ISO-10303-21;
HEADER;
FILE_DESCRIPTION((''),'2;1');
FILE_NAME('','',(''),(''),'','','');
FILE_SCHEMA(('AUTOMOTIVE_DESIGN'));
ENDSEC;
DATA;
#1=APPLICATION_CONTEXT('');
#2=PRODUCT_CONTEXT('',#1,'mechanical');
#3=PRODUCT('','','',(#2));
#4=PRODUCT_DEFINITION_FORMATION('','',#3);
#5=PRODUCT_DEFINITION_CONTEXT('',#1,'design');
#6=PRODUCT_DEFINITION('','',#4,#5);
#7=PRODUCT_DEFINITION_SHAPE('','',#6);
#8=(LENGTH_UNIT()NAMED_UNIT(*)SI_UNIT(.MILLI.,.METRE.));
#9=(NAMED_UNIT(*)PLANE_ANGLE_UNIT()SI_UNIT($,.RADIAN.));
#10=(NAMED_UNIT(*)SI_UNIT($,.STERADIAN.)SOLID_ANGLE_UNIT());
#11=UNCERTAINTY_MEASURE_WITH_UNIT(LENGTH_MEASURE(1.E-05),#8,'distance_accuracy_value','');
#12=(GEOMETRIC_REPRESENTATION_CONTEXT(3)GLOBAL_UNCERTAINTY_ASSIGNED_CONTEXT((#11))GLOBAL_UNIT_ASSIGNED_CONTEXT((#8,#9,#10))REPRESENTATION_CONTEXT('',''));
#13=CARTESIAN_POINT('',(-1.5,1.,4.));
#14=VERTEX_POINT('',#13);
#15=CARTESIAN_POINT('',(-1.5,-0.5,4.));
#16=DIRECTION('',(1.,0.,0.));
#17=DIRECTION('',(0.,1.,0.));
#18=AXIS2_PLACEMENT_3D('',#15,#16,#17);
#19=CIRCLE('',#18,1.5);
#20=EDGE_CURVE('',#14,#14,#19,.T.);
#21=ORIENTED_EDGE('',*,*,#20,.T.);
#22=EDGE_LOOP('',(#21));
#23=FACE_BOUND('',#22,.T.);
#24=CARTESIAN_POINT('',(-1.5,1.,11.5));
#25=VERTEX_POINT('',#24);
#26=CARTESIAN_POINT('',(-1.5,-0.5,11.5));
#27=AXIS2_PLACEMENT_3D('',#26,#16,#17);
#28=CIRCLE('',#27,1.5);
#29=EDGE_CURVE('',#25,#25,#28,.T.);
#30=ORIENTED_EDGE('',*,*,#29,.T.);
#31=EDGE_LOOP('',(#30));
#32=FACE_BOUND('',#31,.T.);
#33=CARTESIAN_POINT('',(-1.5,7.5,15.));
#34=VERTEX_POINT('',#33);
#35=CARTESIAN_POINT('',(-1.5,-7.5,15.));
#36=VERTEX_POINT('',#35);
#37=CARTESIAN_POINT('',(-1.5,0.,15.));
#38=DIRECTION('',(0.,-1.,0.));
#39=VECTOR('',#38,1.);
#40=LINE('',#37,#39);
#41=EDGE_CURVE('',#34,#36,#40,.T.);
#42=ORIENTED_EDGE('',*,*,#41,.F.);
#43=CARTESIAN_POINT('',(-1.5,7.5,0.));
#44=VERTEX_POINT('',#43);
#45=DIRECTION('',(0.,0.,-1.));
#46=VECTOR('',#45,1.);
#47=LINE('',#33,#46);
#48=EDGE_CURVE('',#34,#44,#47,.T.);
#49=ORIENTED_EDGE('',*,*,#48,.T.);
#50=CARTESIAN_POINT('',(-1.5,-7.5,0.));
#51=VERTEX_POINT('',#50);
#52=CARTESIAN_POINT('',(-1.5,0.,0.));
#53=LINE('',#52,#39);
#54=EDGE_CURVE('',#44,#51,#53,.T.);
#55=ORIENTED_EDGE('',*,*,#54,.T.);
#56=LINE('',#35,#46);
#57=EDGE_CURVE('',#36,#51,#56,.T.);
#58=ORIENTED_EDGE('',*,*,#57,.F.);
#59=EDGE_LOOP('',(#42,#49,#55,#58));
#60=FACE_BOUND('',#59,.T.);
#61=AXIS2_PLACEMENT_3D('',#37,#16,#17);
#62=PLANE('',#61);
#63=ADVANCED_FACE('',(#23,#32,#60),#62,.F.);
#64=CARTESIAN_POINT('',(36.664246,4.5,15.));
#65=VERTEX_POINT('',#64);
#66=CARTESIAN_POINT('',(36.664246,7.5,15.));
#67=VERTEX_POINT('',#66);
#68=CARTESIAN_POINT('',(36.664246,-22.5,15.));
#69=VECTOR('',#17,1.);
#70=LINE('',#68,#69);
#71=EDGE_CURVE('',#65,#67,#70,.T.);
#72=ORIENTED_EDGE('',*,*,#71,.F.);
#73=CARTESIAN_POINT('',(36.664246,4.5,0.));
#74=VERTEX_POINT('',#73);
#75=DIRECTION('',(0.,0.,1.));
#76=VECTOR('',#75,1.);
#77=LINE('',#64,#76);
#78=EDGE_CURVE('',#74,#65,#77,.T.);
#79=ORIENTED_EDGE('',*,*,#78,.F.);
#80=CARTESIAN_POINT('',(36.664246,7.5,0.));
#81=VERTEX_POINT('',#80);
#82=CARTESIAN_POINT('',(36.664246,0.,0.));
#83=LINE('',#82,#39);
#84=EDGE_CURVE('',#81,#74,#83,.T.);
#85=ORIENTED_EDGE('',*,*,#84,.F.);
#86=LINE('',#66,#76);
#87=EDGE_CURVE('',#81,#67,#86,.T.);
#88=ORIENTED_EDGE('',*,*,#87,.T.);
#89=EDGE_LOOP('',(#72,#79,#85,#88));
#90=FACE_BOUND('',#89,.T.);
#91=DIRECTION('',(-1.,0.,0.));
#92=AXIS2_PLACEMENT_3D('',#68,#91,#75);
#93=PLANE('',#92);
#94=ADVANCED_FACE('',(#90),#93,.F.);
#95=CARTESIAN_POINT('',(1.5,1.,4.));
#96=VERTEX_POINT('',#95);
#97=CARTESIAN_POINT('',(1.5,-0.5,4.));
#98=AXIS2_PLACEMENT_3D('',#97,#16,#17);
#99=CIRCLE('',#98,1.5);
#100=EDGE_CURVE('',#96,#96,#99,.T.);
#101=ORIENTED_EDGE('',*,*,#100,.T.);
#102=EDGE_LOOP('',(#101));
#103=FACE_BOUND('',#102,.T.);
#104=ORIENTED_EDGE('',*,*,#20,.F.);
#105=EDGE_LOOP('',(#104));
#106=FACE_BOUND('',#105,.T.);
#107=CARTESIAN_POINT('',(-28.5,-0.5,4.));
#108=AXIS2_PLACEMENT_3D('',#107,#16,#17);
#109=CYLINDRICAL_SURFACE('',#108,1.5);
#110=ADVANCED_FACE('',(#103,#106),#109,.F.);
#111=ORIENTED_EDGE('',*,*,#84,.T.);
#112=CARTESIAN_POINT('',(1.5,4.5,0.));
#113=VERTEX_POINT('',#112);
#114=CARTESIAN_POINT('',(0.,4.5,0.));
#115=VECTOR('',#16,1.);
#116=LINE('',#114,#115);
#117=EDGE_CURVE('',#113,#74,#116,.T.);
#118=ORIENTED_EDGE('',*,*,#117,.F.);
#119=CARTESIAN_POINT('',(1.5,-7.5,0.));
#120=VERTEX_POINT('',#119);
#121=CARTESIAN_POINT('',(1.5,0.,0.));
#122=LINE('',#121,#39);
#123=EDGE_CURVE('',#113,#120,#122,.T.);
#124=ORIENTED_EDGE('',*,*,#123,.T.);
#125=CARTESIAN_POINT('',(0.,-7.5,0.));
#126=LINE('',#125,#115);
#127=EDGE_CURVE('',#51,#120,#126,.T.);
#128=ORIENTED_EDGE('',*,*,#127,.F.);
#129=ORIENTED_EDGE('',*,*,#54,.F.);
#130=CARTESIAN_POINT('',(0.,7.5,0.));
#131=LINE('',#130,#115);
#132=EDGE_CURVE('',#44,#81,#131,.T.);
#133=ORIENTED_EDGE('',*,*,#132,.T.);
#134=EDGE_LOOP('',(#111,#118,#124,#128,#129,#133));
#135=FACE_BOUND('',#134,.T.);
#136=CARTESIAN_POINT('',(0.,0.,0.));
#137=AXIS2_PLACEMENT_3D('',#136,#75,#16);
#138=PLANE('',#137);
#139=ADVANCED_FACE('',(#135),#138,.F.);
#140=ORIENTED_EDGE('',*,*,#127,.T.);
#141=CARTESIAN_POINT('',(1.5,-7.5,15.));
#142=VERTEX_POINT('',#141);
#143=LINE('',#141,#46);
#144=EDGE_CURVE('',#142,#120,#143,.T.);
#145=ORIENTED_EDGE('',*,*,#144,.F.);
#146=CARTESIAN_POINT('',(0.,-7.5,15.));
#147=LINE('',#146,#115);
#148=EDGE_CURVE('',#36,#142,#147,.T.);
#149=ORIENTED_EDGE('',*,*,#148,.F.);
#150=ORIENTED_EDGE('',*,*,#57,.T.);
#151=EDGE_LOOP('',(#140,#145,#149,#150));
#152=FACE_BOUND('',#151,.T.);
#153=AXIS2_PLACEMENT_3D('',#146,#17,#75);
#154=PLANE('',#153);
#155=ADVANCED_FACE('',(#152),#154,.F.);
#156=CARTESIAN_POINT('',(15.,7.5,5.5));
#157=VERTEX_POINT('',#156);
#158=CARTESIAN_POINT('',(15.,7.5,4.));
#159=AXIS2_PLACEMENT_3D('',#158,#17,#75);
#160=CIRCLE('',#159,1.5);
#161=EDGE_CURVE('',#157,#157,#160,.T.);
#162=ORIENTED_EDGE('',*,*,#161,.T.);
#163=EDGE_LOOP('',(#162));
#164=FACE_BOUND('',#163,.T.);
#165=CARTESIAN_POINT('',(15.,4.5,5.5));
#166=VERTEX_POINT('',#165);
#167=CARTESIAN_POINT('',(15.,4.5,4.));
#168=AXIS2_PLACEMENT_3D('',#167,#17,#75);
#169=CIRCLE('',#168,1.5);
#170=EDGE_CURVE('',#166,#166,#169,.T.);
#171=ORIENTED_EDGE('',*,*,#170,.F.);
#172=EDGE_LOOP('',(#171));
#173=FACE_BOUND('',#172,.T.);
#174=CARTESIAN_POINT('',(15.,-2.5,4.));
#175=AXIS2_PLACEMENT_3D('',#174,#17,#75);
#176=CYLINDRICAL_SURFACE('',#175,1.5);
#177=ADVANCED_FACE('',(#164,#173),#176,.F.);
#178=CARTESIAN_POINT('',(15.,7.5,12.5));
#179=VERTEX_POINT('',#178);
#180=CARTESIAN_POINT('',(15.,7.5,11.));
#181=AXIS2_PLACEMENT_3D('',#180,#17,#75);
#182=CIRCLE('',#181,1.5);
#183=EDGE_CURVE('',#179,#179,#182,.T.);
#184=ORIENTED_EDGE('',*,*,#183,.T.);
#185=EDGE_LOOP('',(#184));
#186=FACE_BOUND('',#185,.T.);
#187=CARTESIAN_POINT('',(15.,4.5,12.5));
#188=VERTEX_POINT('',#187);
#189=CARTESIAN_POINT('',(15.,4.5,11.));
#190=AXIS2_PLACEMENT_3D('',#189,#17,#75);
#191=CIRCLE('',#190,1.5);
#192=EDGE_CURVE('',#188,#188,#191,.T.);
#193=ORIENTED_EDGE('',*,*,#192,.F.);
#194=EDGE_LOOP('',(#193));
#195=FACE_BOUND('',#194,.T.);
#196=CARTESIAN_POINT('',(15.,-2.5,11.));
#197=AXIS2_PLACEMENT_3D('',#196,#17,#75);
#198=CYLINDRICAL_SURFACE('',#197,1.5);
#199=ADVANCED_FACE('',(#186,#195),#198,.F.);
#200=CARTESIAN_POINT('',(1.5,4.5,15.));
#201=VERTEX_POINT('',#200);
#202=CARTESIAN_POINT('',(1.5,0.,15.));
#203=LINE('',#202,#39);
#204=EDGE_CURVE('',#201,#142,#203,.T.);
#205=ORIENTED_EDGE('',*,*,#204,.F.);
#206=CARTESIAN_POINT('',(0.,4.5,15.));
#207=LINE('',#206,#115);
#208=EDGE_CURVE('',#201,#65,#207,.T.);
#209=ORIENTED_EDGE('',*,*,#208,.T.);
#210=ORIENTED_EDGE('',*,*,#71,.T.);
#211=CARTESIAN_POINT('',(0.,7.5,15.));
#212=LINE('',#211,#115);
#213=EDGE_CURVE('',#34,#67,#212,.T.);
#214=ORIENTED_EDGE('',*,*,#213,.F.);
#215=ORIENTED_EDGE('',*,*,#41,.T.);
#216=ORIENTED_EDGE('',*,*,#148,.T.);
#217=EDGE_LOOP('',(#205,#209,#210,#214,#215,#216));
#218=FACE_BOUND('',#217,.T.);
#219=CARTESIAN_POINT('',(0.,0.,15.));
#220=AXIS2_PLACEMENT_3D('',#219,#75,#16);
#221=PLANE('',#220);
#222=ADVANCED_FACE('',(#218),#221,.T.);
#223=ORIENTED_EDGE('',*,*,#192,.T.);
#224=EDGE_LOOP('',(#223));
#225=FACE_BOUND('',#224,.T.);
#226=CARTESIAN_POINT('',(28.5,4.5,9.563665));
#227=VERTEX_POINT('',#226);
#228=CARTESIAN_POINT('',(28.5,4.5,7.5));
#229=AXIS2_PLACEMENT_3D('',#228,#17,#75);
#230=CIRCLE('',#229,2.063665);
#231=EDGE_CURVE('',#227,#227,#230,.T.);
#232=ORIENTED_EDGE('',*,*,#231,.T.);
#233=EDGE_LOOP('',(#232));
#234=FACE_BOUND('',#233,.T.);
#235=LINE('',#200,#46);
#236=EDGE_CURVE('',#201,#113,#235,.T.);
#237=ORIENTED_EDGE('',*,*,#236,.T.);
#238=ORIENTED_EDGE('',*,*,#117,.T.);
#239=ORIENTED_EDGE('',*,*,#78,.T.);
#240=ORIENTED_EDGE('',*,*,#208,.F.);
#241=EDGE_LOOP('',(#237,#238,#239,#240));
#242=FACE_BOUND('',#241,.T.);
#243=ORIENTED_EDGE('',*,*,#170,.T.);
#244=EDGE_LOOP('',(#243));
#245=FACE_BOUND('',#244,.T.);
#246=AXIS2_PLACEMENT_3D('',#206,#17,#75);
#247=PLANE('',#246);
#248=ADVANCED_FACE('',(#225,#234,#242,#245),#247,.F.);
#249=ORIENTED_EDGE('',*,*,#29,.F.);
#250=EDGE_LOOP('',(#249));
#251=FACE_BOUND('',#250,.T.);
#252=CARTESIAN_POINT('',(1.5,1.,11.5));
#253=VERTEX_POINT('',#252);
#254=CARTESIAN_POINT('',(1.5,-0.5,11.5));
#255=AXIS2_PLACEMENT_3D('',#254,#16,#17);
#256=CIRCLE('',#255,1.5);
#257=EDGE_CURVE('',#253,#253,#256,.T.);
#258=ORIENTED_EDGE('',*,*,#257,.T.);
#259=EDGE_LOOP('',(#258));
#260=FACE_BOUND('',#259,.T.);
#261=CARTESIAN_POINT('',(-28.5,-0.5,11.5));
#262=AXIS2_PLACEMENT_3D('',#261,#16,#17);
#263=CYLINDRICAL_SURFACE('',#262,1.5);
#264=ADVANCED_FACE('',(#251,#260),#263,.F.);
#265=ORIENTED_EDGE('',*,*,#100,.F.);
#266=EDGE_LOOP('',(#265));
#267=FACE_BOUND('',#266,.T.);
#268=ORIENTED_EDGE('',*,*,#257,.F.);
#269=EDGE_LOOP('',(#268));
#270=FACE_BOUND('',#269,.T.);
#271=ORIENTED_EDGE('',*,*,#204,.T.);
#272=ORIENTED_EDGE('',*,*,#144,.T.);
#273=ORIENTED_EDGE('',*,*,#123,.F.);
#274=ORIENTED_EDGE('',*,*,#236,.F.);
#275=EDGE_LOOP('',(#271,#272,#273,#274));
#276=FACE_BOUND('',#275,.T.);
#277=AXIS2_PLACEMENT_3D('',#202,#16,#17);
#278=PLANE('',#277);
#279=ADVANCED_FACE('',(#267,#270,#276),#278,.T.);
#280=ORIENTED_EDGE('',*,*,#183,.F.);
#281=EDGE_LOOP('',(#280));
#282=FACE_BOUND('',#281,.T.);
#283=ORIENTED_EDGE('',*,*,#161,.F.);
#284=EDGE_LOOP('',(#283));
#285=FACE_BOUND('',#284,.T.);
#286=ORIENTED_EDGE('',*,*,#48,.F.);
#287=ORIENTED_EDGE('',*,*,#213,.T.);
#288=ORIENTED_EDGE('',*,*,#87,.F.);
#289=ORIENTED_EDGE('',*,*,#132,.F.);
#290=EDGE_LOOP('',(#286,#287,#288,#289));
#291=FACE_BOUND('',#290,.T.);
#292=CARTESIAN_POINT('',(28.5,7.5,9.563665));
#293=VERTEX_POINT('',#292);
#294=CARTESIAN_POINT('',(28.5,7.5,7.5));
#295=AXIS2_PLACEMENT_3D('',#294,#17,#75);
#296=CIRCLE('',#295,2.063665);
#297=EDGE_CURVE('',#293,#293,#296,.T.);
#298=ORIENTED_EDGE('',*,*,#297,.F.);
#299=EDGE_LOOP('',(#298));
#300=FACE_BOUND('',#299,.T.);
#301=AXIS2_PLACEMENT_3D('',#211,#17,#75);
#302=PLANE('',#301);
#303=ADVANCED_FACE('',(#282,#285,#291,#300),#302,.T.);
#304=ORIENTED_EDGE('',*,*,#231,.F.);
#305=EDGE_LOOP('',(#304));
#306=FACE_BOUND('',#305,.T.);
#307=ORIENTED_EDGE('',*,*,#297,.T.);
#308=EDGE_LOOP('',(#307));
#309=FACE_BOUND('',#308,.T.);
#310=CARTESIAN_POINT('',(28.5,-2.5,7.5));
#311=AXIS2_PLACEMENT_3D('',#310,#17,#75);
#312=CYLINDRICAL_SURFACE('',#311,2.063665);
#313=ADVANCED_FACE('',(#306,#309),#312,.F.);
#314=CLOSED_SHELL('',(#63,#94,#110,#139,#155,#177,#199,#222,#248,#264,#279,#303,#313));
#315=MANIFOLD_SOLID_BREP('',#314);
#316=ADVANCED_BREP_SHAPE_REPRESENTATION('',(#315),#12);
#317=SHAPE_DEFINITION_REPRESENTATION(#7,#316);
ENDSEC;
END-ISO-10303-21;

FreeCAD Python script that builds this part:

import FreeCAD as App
import Part
import Sketcher

V = App.Vector
Q = App.Units.Quantity

doc = App.newDocument("Part")
body = doc.addObject("PartDesign::Body", "Body")

# Sketch on XY plane
sketch1 = body.newObject("Sketcher::SketchObject", "Sketch")
sketch1.AttachmentSupport = (doc.getObject("XY_Plane"), [""])
sketch1.MapMode = "FlatFace"
sketch1.addGeometry(Part.LineSegment(V(-1.5, -7.5, 0), V(1.5, -7.5, 0)), False)
sketch1.addGeometry(Part.LineSegment(V(1.5, -7.5, 0), V(1.5, 4.5, 0)), False)
sketch1.addGeometry(Part.LineSegment(V(1.5, 4.5, 0), V(48.5, 4.5, 0)), False)
sketch1.addGeometry(Part.LineSegment(V(48.5, 4.5, 0), V(48.5, 7.5, 0)), False)
sketch1.addGeometry(Part.LineSegment(V(48.5, 7.5, 0), V(-1.5, 7.5, 0)), False)
sketch1.addGeometry(Part.LineSegment(V(-1.5, 7.5, 0), V(-1.5, -7.5, 0)), False)
sketch1.addConstraint(Sketcher.Constraint("Coincident", 0, 2, 1, 1))
sketch1.addConstraint(Sketcher.Constraint("Coincident", 1, 2, 2, 1))
sketch1.addConstraint(Sketcher.Constraint("Coincident", 2, 2, 3, 1))
sketch1.addConstraint(Sketcher.Constraint("Coincident", 3, 2, 4, 1))
sketch1.addConstraint(Sketcher.Constraint("Coincident", 4, 2, 5, 1))
sketch1.addConstraint(Sketcher.Constraint("Coincident", 5, 2, 0, 1))
sketch1.addConstraint(Sketcher.Constraint("Horizontal", 0))
sketch1.addConstraint(Sketcher.Constraint("Vertical", 1))
sketch1.addConstraint(Sketcher.Constraint("Horizontal", 2))
sketch1.addConstraint(Sketcher.Constraint("Vertical", 3))
sketch1.addConstraint(Sketcher.Constraint("Horizontal", 4))
sketch1.addConstraint(Sketcher.Constraint("Vertical", 5))
sketch1.addConstraint(Sketcher.Constraint("Symmetric", 0, 2, 4, 2, -1, 1))
sketch1.addConstraint(Sketcher.Constraint("Equal", 0, 3))
sketch1.addConstraint(Sketcher.Constraint("DistanceX", 0, 1, 0, 2, Q("3 mm")))
sketch1.addConstraint(Sketcher.Constraint("DistanceX", 2, 1, 2, 2, Q("47 mm")))
sketch1.addConstraint(Sketcher.Constraint("DistanceY", 1, 1, 1, 2, Q("12 mm")))
pad1 = body.newObject("PartDesign::Pad", "Pad")
pad1.Profile = sketch1
pad1.Length = 15

# Sketch on YZ plane
sketch2 = body.newObject("Sketcher::SketchObject", "Sketch001")
sketch2.AttachmentSupport = (doc.getObject("YZ_Plane"), [""])
sketch2.MapMode = "FlatFace"
sketch2.AttachmentOffset = App.Placement(V(0, 0, 1.5), App.Rotation())
sketch2.addGeometry(Part.Circle(V(-0.5, 11.5, 0), V(0, 0, 1), 1.5), False)
sketch2.addGeometry(Part.Circle(V(-0.5, 4, 0), V(0, 0, 1), 1.5), False)
sketch2.addConstraint(Sketcher.Constraint("Equal", 0, 1))
sketch2.addConstraint(Sketcher.Constraint("Vertical", 0, 3, 1, 3))
sketch2.addConstraint(Sketcher.Constraint("Diameter", 0, Q("3 mm")))
sketch2.addConstraint(Sketcher.Constraint("DistanceY", -1, 1, 1, 3, Q("4 mm")))
sketch2.addConstraint(Sketcher.Constraint("DistanceX", 0, 3, -1, 1, Q("0.5 mm")))
sketch2.addConstraint(Sketcher.Constraint("DistanceY", -1, 1, 0, 3, Q("11.5 mm")))
pocket1 = body.newObject("PartDesign::Pocket", "Pocket")
pocket1.Profile = sketch2
pocket1.Length = 30

# Sketch on XZ plane
sketch3 = body.newObject("Sketcher::SketchObject", "Sketch002")
sketch3.AttachmentSupport = (doc.getObject("XZ_Plane"), [""])
sketch3.MapMode = "FlatFace"
sketch3.AttachmentOffset = App.Placement(V(0, 0, -7.5), App.Rotation())
sketch3.addGeometry(Part.Circle(V(28.5, 7.5, 0), V(0, 0, 1), 2.063665), False)
sketch3.addConstraint(Sketcher.Constraint("DistanceX", -1, 1, 0, 3, Q("28.5 mm")))
sketch3.addConstraint(Sketcher.Constraint("DistanceY", -1, 1, 0, 3, Q("7.5 mm")))
sketch3.addConstraint(Sketcher.Constraint("Diameter", 0, Q("4.127331 mm")))
pocket2 = body.newObject("PartDesign::Pocket", "Pocket001")
pocket2.Profile = sketch3
pocket2.Length = 10
pocket2.Reversed = True

# Sketch on XZ plane
sketch4 = body.newObject("Sketcher::SketchObject", "Sketch003")
sketch4.AttachmentSupport = (doc.getObject("XZ_Plane"), [""])
sketch4.MapMode = "FlatFace"
sketch4.AttachmentOffset = App.Placement(V(0, 0, -7.5), App.Rotation())
sketch4.addGeometry(Part.LineSegment(V(36.664246, 0, 0), V(36.664246, 15, 0)), False)
sketch4.addGeometry(Part.LineSegment(V(36.664246, 15, 0), V(48.5, 15, 0)), False)
sketch4.addGeometry(Part.LineSegment(V(48.5, 15, 0), V(48.5, 0, 0)), False)
sketch4.addGeometry(Part.LineSegment(V(48.5, 0, 0), V(36.664246, 0, 0)), False)
sketch4.addConstraint(Sketcher.Constraint("Coincident", 0, 2, 1, 1))
sketch4.addConstraint(Sketcher.Constraint("Coincident", 1, 2, 2, 1))
sketch4.addConstraint(Sketcher.Constraint("Coincident", 2, 2, 3, 1))
sketch4.addConstraint(Sketcher.Constraint("Coincident", 3, 2, 0, 1))
sketch4.addConstraint(Sketcher.Constraint("Vertical", 0))
sketch4.addConstraint(Sketcher.Constraint("Horizontal", 1))
sketch4.addConstraint(Sketcher.Constraint("Vertical", 2))
sketch4.addConstraint(Sketcher.Constraint("Horizontal", 3))
sketch4.addConstraint(Sketcher.Constraint("PointOnObject", 2, 2, -1))
sketch4.addConstraint(Sketcher.Constraint("DistanceY", 0, 1, 0, 2, Q("15 mm")))
sketch4.addConstraint(Sketcher.Constraint("DistanceX", -1, 1, 1, 2, Q("48.5 mm")))
sketch4.addConstraint(Sketcher.Constraint("DistanceX", 1, 1, 1, 2, Q("11.835754 mm")))
pocket3 = body.newObject("PartDesign::Pocket", "Pocket002")
pocket3.Profile = sketch4
pocket3.Length = 30
pocket3.Reversed = True

# Sketch on XZ plane
sketch5 = body.newObject("Sketcher::SketchObject", "Sketch004")
sketch5.AttachmentSupport = (doc.getObject("XZ_Plane"), [""])
sketch5.MapMode = "FlatFace"
sketch5.AttachmentOffset = App.Placement(V(0, 0, -7.5), App.Rotation())
sketch5.addGeometry(Part.Circle(V(15, 4, 0), V(0, 0, 1), 1.5), False)
sketch5.addGeometry(Part.Circle(V(15, 11, 0), V(0, 0, 1), 1.5), False)
sketch5.addConstraint(Sketcher.Constraint("Equal", 0, 1))
sketch5.addConstraint(Sketcher.Constraint("Vertical", 0, 3, 1, 3))
sketch5.addConstraint(Sketcher.Constraint("Diameter", 0, Q("3 mm")))
sketch5.addConstraint(Sketcher.Constraint("DistanceX", -1, 1, 0, 3, Q("15 mm")))
sketch5.addConstraint(Sketcher.Constraint("DistanceY", -1, 1, 0, 3, Q("4 mm")))
sketch5.addConstraint(Sketcher.Constraint("DistanceY", -1, 1, 1, 3, Q("11 mm")))
pocket4 = body.newObject("PartDesign::Pocket", "Pocket003")
pocket4.Profile = sketch5
pocket4.Length = 10
pocket4.Reversed = True

doc.recompute()
